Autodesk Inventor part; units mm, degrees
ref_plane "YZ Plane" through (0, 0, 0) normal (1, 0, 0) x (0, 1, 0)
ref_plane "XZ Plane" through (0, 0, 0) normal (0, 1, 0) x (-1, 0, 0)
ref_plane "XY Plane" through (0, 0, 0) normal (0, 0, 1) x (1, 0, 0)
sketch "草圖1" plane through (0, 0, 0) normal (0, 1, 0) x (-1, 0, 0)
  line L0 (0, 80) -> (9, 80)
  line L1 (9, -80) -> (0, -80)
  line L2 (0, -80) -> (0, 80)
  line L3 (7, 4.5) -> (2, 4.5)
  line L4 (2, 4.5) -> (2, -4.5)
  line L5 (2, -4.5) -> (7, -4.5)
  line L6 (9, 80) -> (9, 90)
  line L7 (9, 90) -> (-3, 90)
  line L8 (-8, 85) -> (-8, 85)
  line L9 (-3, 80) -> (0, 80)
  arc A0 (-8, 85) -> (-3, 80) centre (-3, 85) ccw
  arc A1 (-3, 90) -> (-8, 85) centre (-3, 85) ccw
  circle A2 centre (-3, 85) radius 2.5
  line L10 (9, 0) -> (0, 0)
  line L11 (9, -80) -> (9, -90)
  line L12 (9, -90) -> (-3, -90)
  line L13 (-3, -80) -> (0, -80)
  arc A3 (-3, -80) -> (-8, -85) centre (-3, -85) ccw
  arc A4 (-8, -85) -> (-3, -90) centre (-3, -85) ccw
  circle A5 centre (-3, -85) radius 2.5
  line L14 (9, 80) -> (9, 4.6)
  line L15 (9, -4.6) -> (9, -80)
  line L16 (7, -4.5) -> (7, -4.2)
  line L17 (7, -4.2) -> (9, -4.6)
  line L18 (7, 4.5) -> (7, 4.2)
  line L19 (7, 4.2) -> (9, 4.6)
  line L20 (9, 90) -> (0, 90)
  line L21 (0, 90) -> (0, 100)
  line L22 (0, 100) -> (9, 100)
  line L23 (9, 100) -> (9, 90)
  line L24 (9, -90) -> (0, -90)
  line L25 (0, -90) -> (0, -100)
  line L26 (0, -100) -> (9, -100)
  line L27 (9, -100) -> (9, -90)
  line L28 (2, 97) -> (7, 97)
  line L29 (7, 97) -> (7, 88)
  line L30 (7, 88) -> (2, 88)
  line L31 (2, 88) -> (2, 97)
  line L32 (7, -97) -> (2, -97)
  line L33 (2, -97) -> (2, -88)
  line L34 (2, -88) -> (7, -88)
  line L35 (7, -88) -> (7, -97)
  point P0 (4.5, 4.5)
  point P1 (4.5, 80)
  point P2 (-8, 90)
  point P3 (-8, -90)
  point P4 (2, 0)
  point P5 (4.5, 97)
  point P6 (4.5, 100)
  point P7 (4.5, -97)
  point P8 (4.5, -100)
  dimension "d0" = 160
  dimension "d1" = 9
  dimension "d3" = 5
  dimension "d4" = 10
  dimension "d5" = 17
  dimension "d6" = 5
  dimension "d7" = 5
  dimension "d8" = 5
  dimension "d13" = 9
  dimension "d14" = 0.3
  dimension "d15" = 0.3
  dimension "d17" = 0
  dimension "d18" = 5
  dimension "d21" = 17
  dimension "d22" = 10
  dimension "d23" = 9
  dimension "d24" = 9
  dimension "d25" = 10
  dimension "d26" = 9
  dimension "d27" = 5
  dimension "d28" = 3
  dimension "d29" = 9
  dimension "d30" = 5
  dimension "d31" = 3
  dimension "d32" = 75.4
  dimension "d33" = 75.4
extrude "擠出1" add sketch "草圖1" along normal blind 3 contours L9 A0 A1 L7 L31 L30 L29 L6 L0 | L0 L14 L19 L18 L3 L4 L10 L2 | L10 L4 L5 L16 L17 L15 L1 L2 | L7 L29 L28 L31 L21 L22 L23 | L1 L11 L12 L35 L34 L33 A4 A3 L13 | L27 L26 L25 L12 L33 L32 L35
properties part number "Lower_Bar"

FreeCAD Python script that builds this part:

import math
import FreeCAD as App
import Part
import Sketcher

V = App.Vector


def add_polygon(sketch, points):
    """Adds a closed chain of lines whose ends are joined by coincident constraints."""
    first, n = sketch.GeometryCount, len(points)
    for a, b in zip(points, points[1:] + points[:1]):
        sketch.addGeometry(Part.LineSegment(App.Vector(*a, 0), App.Vector(*b, 0)), False)
    for i in range(n):
        sketch.addConstraint(Sketcher.Constraint("Coincident", first + i, 2, first + (i + 1) % n, 1))

doc = App.newDocument("Part")
body = doc.addObject("PartDesign::Body", "Body")

sketch1 = doc.addObject("Sketcher::SketchObject", "Sketch")
body.addObject(sketch1)
sketch1.AttachmentSupport = (doc.XZ_Plane, [""])
sketch1.MapMode = "FlatFace"
sketch1.addGeometry(Part.LineSegment(V(3, 80, 0), V(0, 80, 0)), False)
sketch1.addGeometry(Part.LineSegment(V(0, 80, 0), V(0, -80, 0)), False)
sketch1.addGeometry(Part.LineSegment(V(0, -80, 0), V(3, -80, 0)), False)
sketch1.addGeometry(Part.ArcOfCircle(Part.Circle(V(3, -85, 0), V(0, 0, 1), 5), math.radians(-90), math.radians(90)), False)
sketch1.addGeometry(Part.LineSegment(V(3, -90, 0), V(0, -90, 0)), False)
sketch1.addGeometry(Part.LineSegment(V(0, -90, 0), V(0, -100, 0)), False)
sketch1.addGeometry(Part.LineSegment(V(0, -100, 0), V(-9, -100, 0)), False)
sketch1.addGeometry(Part.LineSegment(V(-9, -100, 0), V(-9, -4.6, 0)), False)
sketch1.addGeometry(Part.LineSegment(V(-9, -4.6, 0), V(-7, -4.2, 0)), False)
sketch1.addGeometry(Part.LineSegment(V(-7, -4.2, 0), V(-7, -4.5, 0)), False)
sketch1.addGeometry(Part.LineSegment(V(-7, -4.5, 0), V(-2, -4.5, 0)), False)
sketch1.addGeometry(Part.LineSegment(V(-2, -4.5, 0), V(-2, 4.5, 0)), False)
sketch1.addGeometry(Part.LineSegment(V(-2, 4.5, 0), V(-7, 4.5, 0)), False)
sketch1.addGeometry(Part.LineSegment(V(-7, 4.5, 0), V(-7, 4.2, 0)), False)
sketch1.addGeometry(Part.LineSegment(V(-7, 4.2, 0), V(-9, 4.6, 0)), False)
sketch1.addGeometry(Part.LineSegment(V(-9, 4.6, 0), V(-9, 100, 0)), False)
sketch1.addGeometry(Part.LineSegment(V(-9, 100, 0), V(0, 100, 0)), False)
sketch1.addGeometry(Part.LineSegment(V(0, 100, 0), V(0, 90, 0)), False)
sketch1.addGeometry(Part.LineSegment(V(0, 90, 0), V(3, 90, 0)), False)
sketch1.addGeometry(Part.ArcOfCircle(Part.Circle(V(3, 85, 0), V(0, 0, 1), 5), math.radians(-90), math.radians(90)), False)
add_polygon(sketch1, [(-2, 88), (-2, 97), (-7, 97), (-7, 88)])
sketch1.addGeometry(Part.Circle(V(3, 85, 0), V(0, 0, 1), 2.5), False)
sketch1.addGeometry(Part.Circle(V(3, -85, 0), V(0, 0, 1), 2.5), False)
add_polygon(sketch1, [(-7, -88), (-7, -97), (-2, -97), (-2, -88)])
sketch1.addConstraint([
    Sketcher.Constraint("Coincident", 0, 2, 1, 1),
    Sketcher.Constraint("Coincident", 1, 2, 2, 1),
    Sketcher.Constraint("Tangent", 2, 2, 3, 2),
    Sketcher.Constraint("Tangent", 3, 1, 4, 1),
    Sketcher.Constraint("Coincident", 4, 2, 5, 1),
    Sketcher.Constraint("Coincident", 5, 2, 6, 1),
    Sketcher.Constraint("Coincident", 6, 2, 7, 1),
    Sketcher.Constraint("Coincident", 7, 2, 8, 1),
    Sketcher.Constraint("Coincident", 8, 2, 9, 1),
    Sketcher.Constraint("Coincident", 9, 2, 10, 1),
    Sketcher.Constraint("Coincident", 10, 2, 11, 1),
    Sketcher.Constraint("Coincident", 11, 2, 12, 1),
    Sketcher.Constraint("Coincident", 12, 2, 13, 1),
    Sketcher.Constraint("Coincident", 13, 2, 14, 1),
    Sketcher.Constraint("Coincident", 14, 2, 15, 1),
    Sketcher.Constraint("Coincident", 15, 2, 16, 1),
    Sketcher.Constraint("Coincident", 16, 2, 17, 1),
    Sketcher.Constraint("Coincident", 17, 2, 18, 1),
    Sketcher.Constraint("Tangent", 18, 2, 19, 2),
    Sketcher.Constraint("Tangent", 19, 1, 0, 1),
    Sketcher.Constraint("Horizontal", 0),
    Sketcher.Constraint("Vertical", 1),
    Sketcher.Constraint("Horizontal", 2),
    Sketcher.Constraint("Horizontal", 4),
    Sketcher.Constraint("Vertical", 5),
    Sketcher.Constraint("Horizontal", 6),
    Sketcher.Constraint("Vertical", 7),
    Sketcher.Constraint("Vertical", 9),
    Sketcher.Constraint("Horizontal", 10),
    Sketcher.Constraint("Vertical", 11),
    Sketcher.Constraint("Horizontal", 12),
    Sketcher.Constraint("Vertical", 13),
    Sketcher.Constraint("Vertical", 15),
    Sketcher.Constraint("Horizontal", 16),
    Sketcher.Constraint("Vertical", 17),
    Sketcher.Constraint("Horizontal", 18),
    Sketcher.Constraint("Vertical", 20),
    Sketcher.Constraint("Horizontal", 21),
    Sketcher.Constraint("Vertical", 22),
    Sketcher.Constraint("Horizontal", 23),
    Sketcher.Constraint("Vertical", 26),
    Sketcher.Constraint("Horizontal", 27),
    Sketcher.Constraint("Vertical", 28),
    Sketcher.Constraint("Horizontal", 29),
    Sketcher.Constraint("Coincident", 24, 3, 19, 3),
    Sketcher.Constraint("Coincident", 25, 3, 3, 3),
    Sketcher.Constraint("Equal", 3, 19),
    Sketcher.Constraint("Equal", 24, 25),
    Sketcher.Constraint("Symmetric", 0, 2, 1, 2, -1, 1),
    Sketcher.Constraint("Symmetric", 5, 2, 16, 2, -1, 1),
    Sketcher.Constraint("Symmetric", 9, 2, 12, 2, -1),
    Sketcher.Constraint("Symmetric", 7, 2, 14, 2, -1),
    Sketcher.Constraint("Symmetric", 21, 2, 26, 2, -1),
    Sketcher.Constraint("Symmetric", 23, 2, 28, 2, -1),
    Sketcher.Constraint("PointOnObject", 4, 2, -2),
    Sketcher.Constraint("Vertical", 3, 3, 19, 3),
    Sketcher.Constraint("Vertical", 11, 2, 20, 2),
    Sketcher.Constraint("Vertical", 13, 2, 21, 2),
    Sketcher.Constraint("Equal", 16, 11),
    Sketcher.Constraint("Equal", 9, 13),
    Sketcher.Constraint("Equal", 11, 20),
    Sketcher.Constraint("Diameter", 24, 5.0),
    Sketcher.Constraint("Radius", 3, 5.0),
    Sketcher.Constraint("DistanceX", 0, 2, 0, 1, 3.0),
    Sketcher.Constraint("DistanceX", 6, 2, 6, 1, 9.0),
    Sketcher.Constraint("DistanceX", 10, 1, 10, 2, 5.0),
    Sketcher.Constraint("DistanceY", 1, 2, 1, 1, 160.0),
    Sketcher.Constraint("DistanceY", 5, 2, 5, 1, 10.0),
    Sketcher.Constraint("DistanceY", 9, 2, 9, 1, 0.3),
    Sketcher.Constraint("DistanceX", 8, 2, 2, 2, 10.0),
    Sketcher.Constraint("DistanceY", 20, 2, 16, 2, 3.0),
    Sketcher.Constraint("DistanceY", 1, 2, 7, 2, 75.4),
])
pad1 = doc.addObject("PartDesign::Pad", "Pad")
body.addObject(pad1)
pad1.Profile = sketch1
pad1.Length = 3
pad1.Reversed = True

doc.recompute()
